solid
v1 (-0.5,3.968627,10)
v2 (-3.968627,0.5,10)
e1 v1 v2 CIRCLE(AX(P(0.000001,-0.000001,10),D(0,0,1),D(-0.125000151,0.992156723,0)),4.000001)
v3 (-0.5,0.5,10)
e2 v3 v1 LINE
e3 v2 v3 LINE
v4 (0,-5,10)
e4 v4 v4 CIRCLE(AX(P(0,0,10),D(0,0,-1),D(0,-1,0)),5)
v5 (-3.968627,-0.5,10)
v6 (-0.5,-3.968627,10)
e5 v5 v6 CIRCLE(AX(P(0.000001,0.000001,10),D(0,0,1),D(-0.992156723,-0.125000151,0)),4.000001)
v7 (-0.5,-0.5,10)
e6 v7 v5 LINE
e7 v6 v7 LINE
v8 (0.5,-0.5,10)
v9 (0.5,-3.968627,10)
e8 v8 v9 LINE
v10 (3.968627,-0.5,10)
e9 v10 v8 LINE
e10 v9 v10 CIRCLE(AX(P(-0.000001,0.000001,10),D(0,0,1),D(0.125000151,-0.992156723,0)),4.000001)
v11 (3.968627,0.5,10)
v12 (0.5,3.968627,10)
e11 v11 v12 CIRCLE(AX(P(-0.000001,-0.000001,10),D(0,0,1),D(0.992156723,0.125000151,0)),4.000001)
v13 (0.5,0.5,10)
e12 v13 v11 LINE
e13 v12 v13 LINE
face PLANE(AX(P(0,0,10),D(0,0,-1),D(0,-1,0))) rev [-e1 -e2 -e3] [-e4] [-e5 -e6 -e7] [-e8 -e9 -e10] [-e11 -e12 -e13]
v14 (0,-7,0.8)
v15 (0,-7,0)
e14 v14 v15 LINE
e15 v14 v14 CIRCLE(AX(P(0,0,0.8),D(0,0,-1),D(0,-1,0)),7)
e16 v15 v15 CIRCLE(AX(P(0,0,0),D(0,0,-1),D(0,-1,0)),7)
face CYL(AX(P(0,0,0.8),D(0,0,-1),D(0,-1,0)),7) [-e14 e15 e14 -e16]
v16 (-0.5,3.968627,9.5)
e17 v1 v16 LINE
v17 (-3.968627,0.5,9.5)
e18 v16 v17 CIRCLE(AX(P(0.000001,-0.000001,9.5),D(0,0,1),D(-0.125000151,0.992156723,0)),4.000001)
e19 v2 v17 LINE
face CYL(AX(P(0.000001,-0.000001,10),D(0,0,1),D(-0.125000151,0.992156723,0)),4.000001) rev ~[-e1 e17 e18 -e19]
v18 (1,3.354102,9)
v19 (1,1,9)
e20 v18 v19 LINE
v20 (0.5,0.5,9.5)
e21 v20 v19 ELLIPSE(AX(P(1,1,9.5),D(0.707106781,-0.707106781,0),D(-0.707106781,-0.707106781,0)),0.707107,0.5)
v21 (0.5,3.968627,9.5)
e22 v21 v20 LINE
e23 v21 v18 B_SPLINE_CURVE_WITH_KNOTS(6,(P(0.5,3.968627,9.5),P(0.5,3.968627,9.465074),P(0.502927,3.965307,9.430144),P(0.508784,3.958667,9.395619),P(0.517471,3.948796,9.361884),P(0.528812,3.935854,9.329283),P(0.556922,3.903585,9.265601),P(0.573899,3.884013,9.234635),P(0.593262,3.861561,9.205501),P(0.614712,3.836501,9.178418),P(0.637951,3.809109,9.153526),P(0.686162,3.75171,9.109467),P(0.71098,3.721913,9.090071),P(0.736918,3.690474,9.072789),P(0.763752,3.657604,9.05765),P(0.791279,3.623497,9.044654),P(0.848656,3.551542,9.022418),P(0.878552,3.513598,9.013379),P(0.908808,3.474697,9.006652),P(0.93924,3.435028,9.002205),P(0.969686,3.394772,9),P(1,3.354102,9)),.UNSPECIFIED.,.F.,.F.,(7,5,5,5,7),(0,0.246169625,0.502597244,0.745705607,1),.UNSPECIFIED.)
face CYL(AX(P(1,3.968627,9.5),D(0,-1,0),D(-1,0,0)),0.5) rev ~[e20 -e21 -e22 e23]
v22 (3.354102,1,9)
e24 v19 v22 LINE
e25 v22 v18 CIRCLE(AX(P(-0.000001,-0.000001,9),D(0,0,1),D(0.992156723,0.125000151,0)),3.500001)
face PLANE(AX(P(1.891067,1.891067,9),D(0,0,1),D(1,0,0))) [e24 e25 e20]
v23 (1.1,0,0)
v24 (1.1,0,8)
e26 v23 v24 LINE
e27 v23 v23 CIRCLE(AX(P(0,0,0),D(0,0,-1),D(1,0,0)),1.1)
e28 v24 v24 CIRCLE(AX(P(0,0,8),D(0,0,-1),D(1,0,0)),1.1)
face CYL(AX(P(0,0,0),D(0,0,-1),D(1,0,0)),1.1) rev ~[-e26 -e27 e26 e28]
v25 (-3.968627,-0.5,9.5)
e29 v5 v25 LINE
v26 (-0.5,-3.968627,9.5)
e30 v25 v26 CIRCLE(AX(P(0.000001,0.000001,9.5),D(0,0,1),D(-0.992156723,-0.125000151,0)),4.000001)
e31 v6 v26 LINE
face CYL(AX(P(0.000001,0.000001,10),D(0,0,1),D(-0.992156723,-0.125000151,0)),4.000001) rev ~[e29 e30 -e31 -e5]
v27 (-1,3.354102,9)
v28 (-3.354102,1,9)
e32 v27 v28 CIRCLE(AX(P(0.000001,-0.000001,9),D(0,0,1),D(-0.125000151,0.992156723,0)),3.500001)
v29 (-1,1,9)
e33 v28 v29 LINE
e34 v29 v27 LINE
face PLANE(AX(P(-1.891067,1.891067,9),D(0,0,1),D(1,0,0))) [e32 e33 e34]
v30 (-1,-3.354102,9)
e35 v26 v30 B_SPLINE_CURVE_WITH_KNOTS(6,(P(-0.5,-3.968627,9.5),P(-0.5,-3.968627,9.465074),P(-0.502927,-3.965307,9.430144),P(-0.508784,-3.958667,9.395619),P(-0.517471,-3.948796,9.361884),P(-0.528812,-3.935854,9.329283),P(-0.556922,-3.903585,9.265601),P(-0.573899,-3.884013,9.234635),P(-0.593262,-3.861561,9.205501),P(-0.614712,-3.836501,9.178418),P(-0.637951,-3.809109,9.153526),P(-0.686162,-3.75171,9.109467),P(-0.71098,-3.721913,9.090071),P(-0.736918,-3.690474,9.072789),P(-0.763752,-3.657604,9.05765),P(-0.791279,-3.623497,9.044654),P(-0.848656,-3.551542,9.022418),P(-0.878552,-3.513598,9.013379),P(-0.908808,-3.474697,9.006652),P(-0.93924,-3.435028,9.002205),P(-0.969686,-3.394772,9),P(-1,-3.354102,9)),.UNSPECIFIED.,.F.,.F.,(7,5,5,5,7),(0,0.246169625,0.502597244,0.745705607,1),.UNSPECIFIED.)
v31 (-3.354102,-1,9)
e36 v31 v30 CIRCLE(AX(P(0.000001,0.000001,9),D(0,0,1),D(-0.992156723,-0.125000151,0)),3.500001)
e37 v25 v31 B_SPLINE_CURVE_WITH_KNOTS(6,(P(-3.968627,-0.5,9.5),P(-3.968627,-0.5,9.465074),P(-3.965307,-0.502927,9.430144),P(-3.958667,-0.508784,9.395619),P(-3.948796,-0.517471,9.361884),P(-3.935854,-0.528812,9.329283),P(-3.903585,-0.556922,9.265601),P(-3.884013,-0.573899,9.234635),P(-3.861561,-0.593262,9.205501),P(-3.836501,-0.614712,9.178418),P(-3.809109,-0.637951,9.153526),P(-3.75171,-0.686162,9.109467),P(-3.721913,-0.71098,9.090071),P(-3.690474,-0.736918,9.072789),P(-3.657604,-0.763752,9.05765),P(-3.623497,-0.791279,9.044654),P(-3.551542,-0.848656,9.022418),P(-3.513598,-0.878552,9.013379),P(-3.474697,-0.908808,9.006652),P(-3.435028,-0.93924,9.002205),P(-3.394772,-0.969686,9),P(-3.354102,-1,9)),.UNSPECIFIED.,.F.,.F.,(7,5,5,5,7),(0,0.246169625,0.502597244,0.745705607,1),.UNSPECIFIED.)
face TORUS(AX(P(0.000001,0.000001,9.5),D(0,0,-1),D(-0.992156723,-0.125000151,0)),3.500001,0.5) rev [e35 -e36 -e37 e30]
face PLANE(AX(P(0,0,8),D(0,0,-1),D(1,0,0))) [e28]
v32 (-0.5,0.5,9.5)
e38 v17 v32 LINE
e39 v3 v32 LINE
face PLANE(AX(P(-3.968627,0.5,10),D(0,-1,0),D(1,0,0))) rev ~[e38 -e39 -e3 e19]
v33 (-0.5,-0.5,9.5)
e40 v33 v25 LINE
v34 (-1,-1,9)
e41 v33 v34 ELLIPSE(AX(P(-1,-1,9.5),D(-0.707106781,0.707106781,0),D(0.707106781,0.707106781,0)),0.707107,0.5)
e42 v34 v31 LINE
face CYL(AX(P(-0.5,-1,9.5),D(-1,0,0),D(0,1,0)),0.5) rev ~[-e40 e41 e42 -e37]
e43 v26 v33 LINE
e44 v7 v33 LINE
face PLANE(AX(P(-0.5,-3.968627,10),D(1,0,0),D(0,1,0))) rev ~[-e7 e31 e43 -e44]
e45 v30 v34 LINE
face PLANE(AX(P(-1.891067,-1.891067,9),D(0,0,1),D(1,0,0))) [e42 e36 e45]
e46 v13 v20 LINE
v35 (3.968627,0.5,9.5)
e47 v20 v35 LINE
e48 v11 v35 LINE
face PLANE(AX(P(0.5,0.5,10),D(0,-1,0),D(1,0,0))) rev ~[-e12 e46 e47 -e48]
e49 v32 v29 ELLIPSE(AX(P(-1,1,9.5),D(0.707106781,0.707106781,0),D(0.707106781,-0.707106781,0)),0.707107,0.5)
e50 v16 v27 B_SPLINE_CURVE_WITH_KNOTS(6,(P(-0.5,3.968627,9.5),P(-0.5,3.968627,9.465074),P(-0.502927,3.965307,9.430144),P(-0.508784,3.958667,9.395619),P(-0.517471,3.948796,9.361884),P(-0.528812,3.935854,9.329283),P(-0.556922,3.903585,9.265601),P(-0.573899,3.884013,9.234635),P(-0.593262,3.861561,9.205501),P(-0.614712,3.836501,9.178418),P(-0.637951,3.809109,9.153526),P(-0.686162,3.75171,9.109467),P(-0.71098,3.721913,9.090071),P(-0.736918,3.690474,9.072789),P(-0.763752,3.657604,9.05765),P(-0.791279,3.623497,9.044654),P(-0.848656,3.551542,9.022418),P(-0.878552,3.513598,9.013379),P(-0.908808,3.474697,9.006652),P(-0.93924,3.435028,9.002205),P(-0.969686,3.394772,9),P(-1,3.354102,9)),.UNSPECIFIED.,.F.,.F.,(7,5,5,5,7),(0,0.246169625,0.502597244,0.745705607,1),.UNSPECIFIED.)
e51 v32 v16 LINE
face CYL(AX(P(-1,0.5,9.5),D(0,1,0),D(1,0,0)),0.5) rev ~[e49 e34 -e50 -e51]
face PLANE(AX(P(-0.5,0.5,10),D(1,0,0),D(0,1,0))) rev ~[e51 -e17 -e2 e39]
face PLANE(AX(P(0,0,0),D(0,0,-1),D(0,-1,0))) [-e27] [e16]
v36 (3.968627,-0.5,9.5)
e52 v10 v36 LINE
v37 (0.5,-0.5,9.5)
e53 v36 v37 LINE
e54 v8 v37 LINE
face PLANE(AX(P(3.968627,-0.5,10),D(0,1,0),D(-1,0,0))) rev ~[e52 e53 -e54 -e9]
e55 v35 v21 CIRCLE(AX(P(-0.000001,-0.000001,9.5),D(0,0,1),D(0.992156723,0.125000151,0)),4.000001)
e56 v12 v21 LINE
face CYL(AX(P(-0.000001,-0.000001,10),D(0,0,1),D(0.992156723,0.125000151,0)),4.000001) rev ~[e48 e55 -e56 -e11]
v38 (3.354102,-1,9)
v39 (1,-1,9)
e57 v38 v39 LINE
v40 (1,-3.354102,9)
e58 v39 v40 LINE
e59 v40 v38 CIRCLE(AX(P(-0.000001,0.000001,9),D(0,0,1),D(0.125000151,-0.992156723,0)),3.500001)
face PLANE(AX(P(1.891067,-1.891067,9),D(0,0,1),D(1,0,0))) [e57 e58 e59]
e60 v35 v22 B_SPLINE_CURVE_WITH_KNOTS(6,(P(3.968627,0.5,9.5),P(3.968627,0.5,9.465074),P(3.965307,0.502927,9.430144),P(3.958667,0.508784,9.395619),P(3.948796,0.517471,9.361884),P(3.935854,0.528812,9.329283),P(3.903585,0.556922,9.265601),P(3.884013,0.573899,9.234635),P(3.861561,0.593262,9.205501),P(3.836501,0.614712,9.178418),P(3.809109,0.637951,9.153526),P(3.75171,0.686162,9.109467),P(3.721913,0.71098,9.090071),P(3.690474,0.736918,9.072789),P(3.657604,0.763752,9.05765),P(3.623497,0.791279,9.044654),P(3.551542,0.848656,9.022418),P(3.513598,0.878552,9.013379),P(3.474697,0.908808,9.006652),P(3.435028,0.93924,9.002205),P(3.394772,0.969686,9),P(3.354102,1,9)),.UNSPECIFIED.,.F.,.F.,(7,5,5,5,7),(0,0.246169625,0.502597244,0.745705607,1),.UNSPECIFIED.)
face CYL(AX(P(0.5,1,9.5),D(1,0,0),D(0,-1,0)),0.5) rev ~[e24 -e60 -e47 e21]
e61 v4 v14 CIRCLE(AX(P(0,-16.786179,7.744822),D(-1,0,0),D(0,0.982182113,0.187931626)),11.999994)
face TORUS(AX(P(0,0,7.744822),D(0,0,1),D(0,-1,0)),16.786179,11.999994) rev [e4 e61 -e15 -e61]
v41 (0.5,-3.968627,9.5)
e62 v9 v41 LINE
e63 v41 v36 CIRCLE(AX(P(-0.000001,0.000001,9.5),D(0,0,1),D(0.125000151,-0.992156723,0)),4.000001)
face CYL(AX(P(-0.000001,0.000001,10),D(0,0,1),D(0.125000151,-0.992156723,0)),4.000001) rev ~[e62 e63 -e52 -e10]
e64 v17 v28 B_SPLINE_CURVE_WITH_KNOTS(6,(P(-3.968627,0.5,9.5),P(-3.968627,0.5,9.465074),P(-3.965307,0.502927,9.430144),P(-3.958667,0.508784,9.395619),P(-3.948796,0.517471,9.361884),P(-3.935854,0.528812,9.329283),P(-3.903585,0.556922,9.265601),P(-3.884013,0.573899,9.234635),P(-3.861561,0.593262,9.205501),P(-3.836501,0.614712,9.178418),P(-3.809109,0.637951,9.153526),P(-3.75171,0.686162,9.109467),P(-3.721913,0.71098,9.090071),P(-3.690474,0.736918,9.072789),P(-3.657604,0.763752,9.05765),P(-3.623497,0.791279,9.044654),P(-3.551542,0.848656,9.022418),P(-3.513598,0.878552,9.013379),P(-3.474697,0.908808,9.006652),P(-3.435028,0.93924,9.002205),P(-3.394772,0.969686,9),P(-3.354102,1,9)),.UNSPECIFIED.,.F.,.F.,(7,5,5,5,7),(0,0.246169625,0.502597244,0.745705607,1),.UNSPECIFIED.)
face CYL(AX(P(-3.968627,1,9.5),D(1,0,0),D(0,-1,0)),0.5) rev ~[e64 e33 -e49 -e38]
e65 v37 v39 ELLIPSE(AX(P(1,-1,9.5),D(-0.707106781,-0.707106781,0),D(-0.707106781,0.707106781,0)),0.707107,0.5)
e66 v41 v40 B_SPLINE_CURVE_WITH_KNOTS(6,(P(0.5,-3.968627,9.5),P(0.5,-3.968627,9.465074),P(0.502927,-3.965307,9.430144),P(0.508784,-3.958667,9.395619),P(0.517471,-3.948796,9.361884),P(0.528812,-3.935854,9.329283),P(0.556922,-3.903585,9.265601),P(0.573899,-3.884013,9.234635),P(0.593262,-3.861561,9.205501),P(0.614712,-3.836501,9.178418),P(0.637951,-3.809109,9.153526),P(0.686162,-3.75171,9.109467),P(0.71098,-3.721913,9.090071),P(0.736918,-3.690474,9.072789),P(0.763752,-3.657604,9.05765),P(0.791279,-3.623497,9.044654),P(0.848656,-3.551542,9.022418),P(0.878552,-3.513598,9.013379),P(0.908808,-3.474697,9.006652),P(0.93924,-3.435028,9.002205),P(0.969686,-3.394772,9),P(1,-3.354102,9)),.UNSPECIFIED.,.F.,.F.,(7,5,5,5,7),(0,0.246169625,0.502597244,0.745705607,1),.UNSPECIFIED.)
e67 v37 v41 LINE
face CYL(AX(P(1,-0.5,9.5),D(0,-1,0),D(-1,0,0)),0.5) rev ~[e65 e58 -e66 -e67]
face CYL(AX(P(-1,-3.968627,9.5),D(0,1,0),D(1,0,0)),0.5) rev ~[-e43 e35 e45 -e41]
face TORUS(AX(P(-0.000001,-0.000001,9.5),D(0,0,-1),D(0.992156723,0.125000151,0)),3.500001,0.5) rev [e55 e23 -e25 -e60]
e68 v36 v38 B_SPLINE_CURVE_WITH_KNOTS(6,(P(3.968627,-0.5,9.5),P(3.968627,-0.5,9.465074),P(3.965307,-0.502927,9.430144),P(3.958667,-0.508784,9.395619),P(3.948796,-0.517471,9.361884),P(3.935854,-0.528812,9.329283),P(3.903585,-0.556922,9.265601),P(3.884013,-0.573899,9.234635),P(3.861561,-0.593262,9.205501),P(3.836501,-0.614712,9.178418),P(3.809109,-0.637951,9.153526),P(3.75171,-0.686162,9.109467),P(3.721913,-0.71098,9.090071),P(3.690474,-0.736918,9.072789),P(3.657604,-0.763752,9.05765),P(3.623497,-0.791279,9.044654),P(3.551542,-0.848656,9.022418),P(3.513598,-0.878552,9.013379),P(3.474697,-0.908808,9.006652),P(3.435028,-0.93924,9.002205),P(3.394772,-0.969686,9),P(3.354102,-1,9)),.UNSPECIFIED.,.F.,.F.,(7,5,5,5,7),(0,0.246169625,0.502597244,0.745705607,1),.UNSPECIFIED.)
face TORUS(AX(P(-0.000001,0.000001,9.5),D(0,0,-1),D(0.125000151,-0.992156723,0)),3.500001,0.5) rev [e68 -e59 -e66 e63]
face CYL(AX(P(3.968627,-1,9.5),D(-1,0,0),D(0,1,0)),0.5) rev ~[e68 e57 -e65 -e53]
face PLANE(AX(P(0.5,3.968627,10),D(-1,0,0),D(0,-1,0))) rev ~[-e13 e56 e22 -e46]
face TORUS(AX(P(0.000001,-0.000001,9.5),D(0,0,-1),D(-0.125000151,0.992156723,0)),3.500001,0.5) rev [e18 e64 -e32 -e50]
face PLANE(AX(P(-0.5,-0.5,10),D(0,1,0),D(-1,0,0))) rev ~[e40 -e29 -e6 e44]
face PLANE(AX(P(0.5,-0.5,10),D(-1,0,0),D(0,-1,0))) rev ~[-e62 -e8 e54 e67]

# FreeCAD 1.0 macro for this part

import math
import FreeCAD as App
import Part
import Sketcher

V = App.Vector
Q = App.Units.Quantity


def edges_at(feature, points):
    """Names of the edges that pass closest to the given points."""
    edges = feature.Shape.Edges
    near = lambda p: min(range(len(edges)), key=lambda i: edges[i].distToShape(Part.Vertex(*p))[0])
    return sorted({f"Edge{near(p) + 1}" for p in points})

doc = App.newDocument("Part")
body = doc.addObject("PartDesign::Body", "Body")

sketch1 = body.newObject("Sketcher::SketchObject", "Sketch")
sketch1.AttachmentSupport = (doc.getObject("YZ_Plane"), [""])
sketch1.MapMode = "FlatFace"
sketch1.addGeometry(Part.LineSegment(V(-7, 0, 0), V(0, 0, 0)), False)
sketch1.addGeometry(Part.LineSegment(V(0, 0, 0), V(0, 10, 0)), False)
sketch1.addGeometry(Part.LineSegment(V(0, 10, 0), V(-5, 10, 0)), False)
sketch1.addGeometry(Part.ArcOfCircle(Part.Circle(V(-16.786179, 7.744822, 0), V(0, 0, 1), 11.999994), math.radians(-35.361648), math.radians(10.832101)), False)
sketch1.addGeometry(Part.LineSegment(V(-7, 0.8, 0), V(-7, 0, 0)), False)
sketch1.addConstraint(Sketcher.Constraint("Coincident", 0, 2, 1, 1))
sketch1.addConstraint(Sketcher.Constraint("Coincident", 1, 2, 2, 1))
sketch1.addConstraint(Sketcher.Constraint("Coincident", 2, 2, 3, 2))
sketch1.addConstraint(Sketcher.Constraint("Coincident", 3, 1, 4, 1))
sketch1.addConstraint(Sketcher.Constraint("Coincident", 4, 2, 0, 1))
sketch1.addConstraint(Sketcher.Constraint("Horizontal", 0))
sketch1.addConstraint(Sketcher.Constraint("Vertical", 1))
sketch1.addConstraint(Sketcher.Constraint("Horizontal", 2))
sketch1.addConstraint(Sketcher.Constraint("Vertical", 4))
sketch1.addConstraint(Sketcher.Constraint("Coincident", 0, 2, -1, 1))
sketch1.addConstraint(Sketcher.Constraint("DistanceX", 0, 1, 0, 2, Q("7 mm")))
sketch1.addConstraint(Sketcher.Constraint("DistanceX", 2, 2, 2, 1, Q("5 mm")))
sketch1.addConstraint(Sketcher.Constraint("DistanceY", 1, 1, 1, 2, Q("10 mm")))
sketch1.addConstraint(Sketcher.Constraint("DistanceY", 4, 2, 4, 1, Q("0.8 mm")))
sketch1.addConstraint(Sketcher.Constraint("Radius", 3, Q("11.999994 mm")))
revolution = body.newObject("PartDesign::Revolution", "Revolution")
revolution.Profile = sketch1
revolution.ReferenceAxis = (sketch1, ["V_Axis"])
revolution.Angle = 360

sketch2 = body.newObject("Sketcher::SketchObject", "Sketch001")
sketch2.AttachmentSupport = (doc.getObject("XY_Plane"), [""])
sketch2.MapMode = "FlatFace"
sketch2.addGeometry(Part.Circle(V(0, 0, 0), V(0, 0, 1), 1.1), False)
sketch2.addConstraint(Sketcher.Constraint("Coincident", 0, 3, -1, 1))
sketch2.addConstraint(Sketcher.Constraint("Diameter", 0, Q("2.2 mm")))
pocket1 = body.newObject("PartDesign::Pocket", "Pocket")
pocket1.Profile = sketch2
pocket1.Length = 8
pocket1.Reversed = True

sketch3 = body.newObject("Sketcher::SketchObject", "Sketch002")
sketch3.AttachmentSupport = (doc.getObject("XY_Plane"), [""])
sketch3.MapMode = "FlatFace"
sketch3.AttachmentOffset = App.Placement(V(0, 0, 10), App.Rotation())
sketch3.addGeometry(Part.LineSegment(V(-0.5, 0.5, 0), V(-0.5, 3.968627, 0)), False)
sketch3.addGeometry(Part.ArcOfCircle(Part.Circle(V(0.000001, -0.000001, 0), V(0, 0, 1), 4.000001), math.radians(97.180764), math.radians(172.819236)), False)
sketch3.addGeometry(Part.LineSegment(V(-3.968627, 0.5, 0), V(-0.5, 0.5, 0)), False)
sketch3.addGeometry(Part.ArcOfCircle(Part.Circle(V(-0.000001, -0.000001, 0), V(0, 0, 1), 4.000001), math.radians(7.180764), math.radians(82.819236)), False)
sketch3.addGeometry(Part.LineSegment(V(0.5, 3.968627, 0), V(0.5, 0.5, 0)), False)
sketch3.addGeometry(Part.LineSegment(V(0.5, 0.5, 0), V(3.968627, 0.5, 0)), False)
sketch3.addGeometry(Part.LineSegment(V(-0.5, -0.5, 0), V(-3.968627, -0.5, 0)), False)
sketch3.addGeometry(Part.ArcOfCircle(Part.Circle(V(0.000001, 0.000001, 0), V(0, 0, 1), 4.000001), math.radians(-172.819236), math.radians(-97.180764)), False)
sketch3.addGeometry(Part.LineSegment(V(-0.5, -3.968627, 0), V(-0.5, -0.5, 0)), False)
sketch3.addGeometry(Part.LineSegment(V(0.5, -0.5, 0), V(0.5, -3.968627, 0)), False)
sketch3.addGeometry(Part.ArcOfCircle(Part.Circle(V(-0.000001, 0.000001, 0), V(0, 0, 1), 4.000001), math.radians(-82.819236), math.radians(-7.180764)), False)
sketch3.addGeometry(Part.LineSegment(V(3.968627, -0.5, 0), V(0.5, -0.5, 0)), False)
sketch3.addConstraint(Sketcher.Constraint("Coincident", 0, 2, 1, 1))
sketch3.addConstraint(Sketcher.Constraint("Coincident", 1, 2, 2, 1))
sketch3.addConstraint(Sketcher.Constraint("Coincident", 2, 2, 0, 1))
sketch3.addConstraint(Sketcher.Constraint("Coincident", 3, 2, 4, 1))
sketch3.addConstraint(Sketcher.Constraint("Coincident", 4, 2, 5, 1))
sketch3.addConstraint(Sketcher.Constraint("Coincident", 5, 2, 3, 1))
sketch3.addConstraint(Sketcher.Constraint("Coincident", 6, 2, 7, 1))
sketch3.addConstraint(Sketcher.Constraint("Coincident", 7, 2, 8, 1))
sketch3.addConstraint(Sketcher.Constraint("Coincident", 8, 2, 6, 1))
sketch3.addConstraint(Sketcher.Constraint("Coincident", 9, 2, 10, 1))
sketch3.addConstraint(Sketcher.Constraint("Coincident", 10, 2, 11, 1))
sketch3.addConstraint(Sketcher.Constraint("Coincident", 11, 2, 9, 1))
sketch3.addConstraint(Sketcher.Constraint("Vertical", 0))
sketch3.addConstraint(Sketcher.Constraint("Horizontal", 2))
sketch3.addConstraint(Sketcher.Constraint("Vertical", 4))
sketch3.addConstraint(Sketcher.Constraint("Horizontal", 5))
sketch3.addConstraint(Sketcher.Constraint("Horizontal", 6))
sketch3.addConstraint(Sketcher.Constraint("Vertical", 8))
sketch3.addConstraint(Sketcher.Constraint("Vertical", 9))
sketch3.addConstraint(Sketcher.Constraint("Horizontal", 11))
sketch3.addConstraint(Sketcher.Constraint("Coincident", 1, 3, -1, 1))
sketch3.addConstraint(Sketcher.Constraint("Coincident", 3, 3, -1, 1))
sketch3.addConstraint(Sketcher.Constraint("Coincident", 7, 3, -1, 1))
sketch3.addConstraint(Sketcher.Constraint("Coincident", 10, 3, -1, 1))
sketch3.addConstraint(Sketcher.Constraint("Equal", 1, 3))
sketch3.addConstraint(Sketcher.Constraint("Equal", 3, 7))
sketch3.addConstraint(Sketcher.Constraint("Equal", 7, 10))
sketch3.addConstraint(Sketcher.Constraint("Symmetric", 4, 2, 8, 2, -1, 1))
sketch3.addConstraint(Sketcher.Constraint("Symmetric", 2, 2, 11, 2, -1, 1))
sketch3.addConstraint(Sketcher.Constraint("Symmetric", 2, 2, 4, 2, -2))
sketch3.addConstraint(Sketcher.Constraint("Equal", 11, 0))
sketch3.addConstraint(Sketcher.Constraint("Radius", 1, Q("4.000001 mm")))
sketch3.addConstraint(Sketcher.Constraint("DistanceX", 0, 2, 3, 2, Q("1 mm")))
pocket2 = body.newObject("PartDesign::Pocket", "Pocket001")
pocket2.Profile = sketch3
pocket2.Length = 1
doc.recompute()

fillet = body.newObject("PartDesign::Fillet", "Fillet")
fillet.Base = (pocket2, edges_at(pocket2, [
    (-2.234, 0.5, 9),
    (-0.5, 2.234, 9),
    (-2.828, 2.828, 9),
    (2.828, 2.828, 9),
    (0.5, 2.234, 9),
    (2.234, 0.5, 9),
    (2.234, -0.5, 9),
    (0.5, -2.234, 9),
    (2.828, -2.828, 9),
    (-0.5, -2.234, 9),
    (-2.234, -0.5, 9),
    (-2.828, -2.828, 9),
]))
fillet.Radius = 0.5

doc.recompute()
